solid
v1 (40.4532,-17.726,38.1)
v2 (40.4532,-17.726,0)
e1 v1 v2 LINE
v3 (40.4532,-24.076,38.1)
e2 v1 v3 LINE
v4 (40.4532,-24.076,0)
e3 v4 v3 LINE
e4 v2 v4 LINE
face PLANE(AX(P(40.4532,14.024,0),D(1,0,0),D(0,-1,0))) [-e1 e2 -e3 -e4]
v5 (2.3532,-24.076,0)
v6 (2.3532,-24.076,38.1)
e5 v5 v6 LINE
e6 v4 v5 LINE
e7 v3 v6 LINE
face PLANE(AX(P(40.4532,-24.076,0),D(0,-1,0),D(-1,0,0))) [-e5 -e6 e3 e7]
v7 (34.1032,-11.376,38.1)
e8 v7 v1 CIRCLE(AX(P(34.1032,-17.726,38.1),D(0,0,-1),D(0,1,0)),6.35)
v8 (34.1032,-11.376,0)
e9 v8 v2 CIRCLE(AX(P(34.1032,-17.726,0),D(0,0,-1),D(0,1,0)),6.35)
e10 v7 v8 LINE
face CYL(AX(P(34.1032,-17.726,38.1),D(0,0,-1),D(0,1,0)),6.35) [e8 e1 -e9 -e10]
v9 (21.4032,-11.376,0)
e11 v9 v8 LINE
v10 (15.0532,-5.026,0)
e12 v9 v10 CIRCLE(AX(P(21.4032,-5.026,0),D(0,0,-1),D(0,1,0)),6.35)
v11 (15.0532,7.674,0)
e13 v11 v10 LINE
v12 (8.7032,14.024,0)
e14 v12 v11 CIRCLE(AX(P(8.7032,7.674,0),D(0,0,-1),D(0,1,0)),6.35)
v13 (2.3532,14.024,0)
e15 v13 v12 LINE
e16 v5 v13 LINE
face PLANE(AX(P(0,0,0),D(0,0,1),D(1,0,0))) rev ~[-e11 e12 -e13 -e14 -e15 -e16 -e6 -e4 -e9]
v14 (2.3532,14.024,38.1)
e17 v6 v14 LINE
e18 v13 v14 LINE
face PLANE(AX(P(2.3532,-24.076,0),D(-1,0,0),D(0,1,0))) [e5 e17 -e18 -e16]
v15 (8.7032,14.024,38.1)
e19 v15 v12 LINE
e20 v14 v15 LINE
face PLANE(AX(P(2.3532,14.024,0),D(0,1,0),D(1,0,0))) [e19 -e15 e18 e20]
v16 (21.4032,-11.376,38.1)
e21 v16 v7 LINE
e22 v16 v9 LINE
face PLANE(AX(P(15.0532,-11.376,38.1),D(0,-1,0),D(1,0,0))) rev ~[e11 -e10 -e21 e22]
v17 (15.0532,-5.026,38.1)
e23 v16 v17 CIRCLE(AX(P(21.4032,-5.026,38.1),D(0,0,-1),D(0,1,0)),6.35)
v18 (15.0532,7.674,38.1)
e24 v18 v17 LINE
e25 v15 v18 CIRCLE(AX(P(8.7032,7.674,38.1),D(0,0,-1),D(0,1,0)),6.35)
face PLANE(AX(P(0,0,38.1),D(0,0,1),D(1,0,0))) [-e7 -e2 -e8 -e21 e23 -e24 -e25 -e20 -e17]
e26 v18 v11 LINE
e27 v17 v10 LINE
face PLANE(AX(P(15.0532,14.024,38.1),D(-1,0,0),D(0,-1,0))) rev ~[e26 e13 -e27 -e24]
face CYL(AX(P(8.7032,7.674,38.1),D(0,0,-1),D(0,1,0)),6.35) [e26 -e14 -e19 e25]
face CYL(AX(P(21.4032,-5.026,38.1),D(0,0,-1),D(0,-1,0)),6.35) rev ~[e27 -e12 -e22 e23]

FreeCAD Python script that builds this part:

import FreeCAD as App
import Part
import Sketcher

V = App.Vector
Q = App.Units.Quantity


def edges_at(feature, points):
    """Names of the edges that pass closest to the given points."""
    edges = feature.Shape.Edges
    near = lambda p: min(range(len(edges)), key=lambda i: edges[i].distToShape(Part.Vertex(*p))[0])
    return sorted({f"Edge{near(p) + 1}" for p in points})

doc = App.newDocument("Part")
body = doc.addObject("PartDesign::Body", "Body")

sketch1 = doc.addObject("Sketcher::SketchObject", "Sketch")
body.addObject(sketch1)
sketch1.AttachmentSupport = (doc.XY_Plane, [""])
sketch1.MapMode = "FlatFace"
sketch1.addGeometry(Part.LineSegment(V(40, 14, 0), V(2, 14, 0)), False)
sketch1.addGeometry(Part.LineSegment(V(2, 14, 0), V(2, -24, 0)), False)
sketch1.addGeometry(Part.LineSegment(V(2, -24, 0), V(40, -24, 0)), False)
sketch1.addGeometry(Part.LineSegment(V(40, -24, 0), V(40, 14, 0)), False)
sketch1.addConstraint(Sketcher.Constraint("Coincident", 0, 2, 1, 1))
sketch1.addConstraint(Sketcher.Constraint("Coincident", 1, 2, 2, 1))
sketch1.addConstraint(Sketcher.Constraint("Coincident", 2, 2, 3, 1))
sketch1.addConstraint(Sketcher.Constraint("Coincident", 3, 2, 0, 1))
sketch1.addConstraint(Sketcher.Constraint("Horizontal", 0))
sketch1.addConstraint(Sketcher.Constraint("Vertical", 1))
sketch1.addConstraint(Sketcher.Constraint("Horizontal", 2))
sketch1.addConstraint(Sketcher.Constraint("Vertical", 3))
sketch1.addConstraint(Sketcher.Constraint("Equal", 2, 1))
sketch1.addConstraint(Sketcher.Constraint("DistanceX", 0, 2, 0, 1, Q("1.5 in")))
sketch1.addConstraint(Sketcher.Constraint("DistanceX", -1, 1, 0, 2, 2.3532))
sketch1.addConstraint(Sketcher.Constraint("DistanceY", -1, 1, 0, 2, 14.024))
pad1 = doc.addObject("PartDesign::Pad", "Pad")
body.addObject(pad1)
pad1.Profile = sketch1
pad1.Length = Q("1.5 in")

sketch2 = doc.addObject("Sketcher::SketchObject", "Sketch001")
body.addObject(sketch2)
sketch2.AttachmentSupport = (doc.XY_Plane, [""])
sketch2.MapMode = "FlatFace"
sketch2.AttachmentOffset = App.Placement(V(0, 0, 1.5 * 25.4), App.Rotation())
sketch2.addGeometry(Part.LineSegment(V(40, 14, 0), V(15, 14, 0)), False)
sketch2.addGeometry(Part.LineSegment(V(15, 14, 0), V(15, -11, 0)), False)
sketch2.addGeometry(Part.LineSegment(V(15, -11, 0), V(40, -11, 0)), False)
sketch2.addGeometry(Part.LineSegment(V(40, -11, 0), V(40, 14, 0)), False)
sketch2.addConstraint(Sketcher.Constraint("Coincident", 0, 2, 1, 1))
sketch2.addConstraint(Sketcher.Constraint("Coincident", 1, 2, 2, 1))
sketch2.addConstraint(Sketcher.Constraint("Coincident", 2, 2, 3, 1))
sketch2.addConstraint(Sketcher.Constraint("Coincident", 3, 2, 0, 1))
sketch2.addConstraint(Sketcher.Constraint("Horizontal", 0))
sketch2.addConstraint(Sketcher.Constraint("Vertical", 1))
sketch2.addConstraint(Sketcher.Constraint("Horizontal", 2))
sketch2.addConstraint(Sketcher.Constraint("Vertical", 3))
sketch2.addConstraint(Sketcher.Constraint("Equal", 2, 1))
sketch2.addConstraint(Sketcher.Constraint("DistanceX", 0, 2, 0, 1, Q("1 in")))
sketch2.addConstraint(Sketcher.Constraint("DistanceX", -1, 1, 0, 2, 15.0532))
sketch2.addConstraint(Sketcher.Constraint("DistanceY", -1, 1, 0, 2, 14.024))
pocket1 = doc.addObject("PartDesign::Pocket", "Pocket")
body.addObject(pocket1)
pocket1.Profile = sketch2
pocket1.Type = "ThroughAll"
doc.recompute()

fillet = doc.addObject("PartDesign::Fillet", "Fillet")
body.addObject(fillet)
fillet.Base = (pocket1, edges_at(pocket1, [(15.053, 14.024, 19.05)]))
fillet.Radius = Q("0.25 in")
doc.recompute()

fillet2 = doc.addObject("PartDesign::Fillet", "Fillet001")
body.addObject(fillet2)
fillet2.Base = (fillet, edges_at(fillet, [(40.453, -11.376, 19.05)]))
fillet2.Radius = Q("0.25 in")
doc.recompute()

fillet3 = doc.addObject("PartDesign::Fillet", "Fillet002")
body.addObject(fillet3)
fillet3.Base = (fillet2, edges_at(fillet2, [(15.053, -11.376, 19.05)]))
fillet3.Radius = Q("0.25 in")

doc.recompute()
